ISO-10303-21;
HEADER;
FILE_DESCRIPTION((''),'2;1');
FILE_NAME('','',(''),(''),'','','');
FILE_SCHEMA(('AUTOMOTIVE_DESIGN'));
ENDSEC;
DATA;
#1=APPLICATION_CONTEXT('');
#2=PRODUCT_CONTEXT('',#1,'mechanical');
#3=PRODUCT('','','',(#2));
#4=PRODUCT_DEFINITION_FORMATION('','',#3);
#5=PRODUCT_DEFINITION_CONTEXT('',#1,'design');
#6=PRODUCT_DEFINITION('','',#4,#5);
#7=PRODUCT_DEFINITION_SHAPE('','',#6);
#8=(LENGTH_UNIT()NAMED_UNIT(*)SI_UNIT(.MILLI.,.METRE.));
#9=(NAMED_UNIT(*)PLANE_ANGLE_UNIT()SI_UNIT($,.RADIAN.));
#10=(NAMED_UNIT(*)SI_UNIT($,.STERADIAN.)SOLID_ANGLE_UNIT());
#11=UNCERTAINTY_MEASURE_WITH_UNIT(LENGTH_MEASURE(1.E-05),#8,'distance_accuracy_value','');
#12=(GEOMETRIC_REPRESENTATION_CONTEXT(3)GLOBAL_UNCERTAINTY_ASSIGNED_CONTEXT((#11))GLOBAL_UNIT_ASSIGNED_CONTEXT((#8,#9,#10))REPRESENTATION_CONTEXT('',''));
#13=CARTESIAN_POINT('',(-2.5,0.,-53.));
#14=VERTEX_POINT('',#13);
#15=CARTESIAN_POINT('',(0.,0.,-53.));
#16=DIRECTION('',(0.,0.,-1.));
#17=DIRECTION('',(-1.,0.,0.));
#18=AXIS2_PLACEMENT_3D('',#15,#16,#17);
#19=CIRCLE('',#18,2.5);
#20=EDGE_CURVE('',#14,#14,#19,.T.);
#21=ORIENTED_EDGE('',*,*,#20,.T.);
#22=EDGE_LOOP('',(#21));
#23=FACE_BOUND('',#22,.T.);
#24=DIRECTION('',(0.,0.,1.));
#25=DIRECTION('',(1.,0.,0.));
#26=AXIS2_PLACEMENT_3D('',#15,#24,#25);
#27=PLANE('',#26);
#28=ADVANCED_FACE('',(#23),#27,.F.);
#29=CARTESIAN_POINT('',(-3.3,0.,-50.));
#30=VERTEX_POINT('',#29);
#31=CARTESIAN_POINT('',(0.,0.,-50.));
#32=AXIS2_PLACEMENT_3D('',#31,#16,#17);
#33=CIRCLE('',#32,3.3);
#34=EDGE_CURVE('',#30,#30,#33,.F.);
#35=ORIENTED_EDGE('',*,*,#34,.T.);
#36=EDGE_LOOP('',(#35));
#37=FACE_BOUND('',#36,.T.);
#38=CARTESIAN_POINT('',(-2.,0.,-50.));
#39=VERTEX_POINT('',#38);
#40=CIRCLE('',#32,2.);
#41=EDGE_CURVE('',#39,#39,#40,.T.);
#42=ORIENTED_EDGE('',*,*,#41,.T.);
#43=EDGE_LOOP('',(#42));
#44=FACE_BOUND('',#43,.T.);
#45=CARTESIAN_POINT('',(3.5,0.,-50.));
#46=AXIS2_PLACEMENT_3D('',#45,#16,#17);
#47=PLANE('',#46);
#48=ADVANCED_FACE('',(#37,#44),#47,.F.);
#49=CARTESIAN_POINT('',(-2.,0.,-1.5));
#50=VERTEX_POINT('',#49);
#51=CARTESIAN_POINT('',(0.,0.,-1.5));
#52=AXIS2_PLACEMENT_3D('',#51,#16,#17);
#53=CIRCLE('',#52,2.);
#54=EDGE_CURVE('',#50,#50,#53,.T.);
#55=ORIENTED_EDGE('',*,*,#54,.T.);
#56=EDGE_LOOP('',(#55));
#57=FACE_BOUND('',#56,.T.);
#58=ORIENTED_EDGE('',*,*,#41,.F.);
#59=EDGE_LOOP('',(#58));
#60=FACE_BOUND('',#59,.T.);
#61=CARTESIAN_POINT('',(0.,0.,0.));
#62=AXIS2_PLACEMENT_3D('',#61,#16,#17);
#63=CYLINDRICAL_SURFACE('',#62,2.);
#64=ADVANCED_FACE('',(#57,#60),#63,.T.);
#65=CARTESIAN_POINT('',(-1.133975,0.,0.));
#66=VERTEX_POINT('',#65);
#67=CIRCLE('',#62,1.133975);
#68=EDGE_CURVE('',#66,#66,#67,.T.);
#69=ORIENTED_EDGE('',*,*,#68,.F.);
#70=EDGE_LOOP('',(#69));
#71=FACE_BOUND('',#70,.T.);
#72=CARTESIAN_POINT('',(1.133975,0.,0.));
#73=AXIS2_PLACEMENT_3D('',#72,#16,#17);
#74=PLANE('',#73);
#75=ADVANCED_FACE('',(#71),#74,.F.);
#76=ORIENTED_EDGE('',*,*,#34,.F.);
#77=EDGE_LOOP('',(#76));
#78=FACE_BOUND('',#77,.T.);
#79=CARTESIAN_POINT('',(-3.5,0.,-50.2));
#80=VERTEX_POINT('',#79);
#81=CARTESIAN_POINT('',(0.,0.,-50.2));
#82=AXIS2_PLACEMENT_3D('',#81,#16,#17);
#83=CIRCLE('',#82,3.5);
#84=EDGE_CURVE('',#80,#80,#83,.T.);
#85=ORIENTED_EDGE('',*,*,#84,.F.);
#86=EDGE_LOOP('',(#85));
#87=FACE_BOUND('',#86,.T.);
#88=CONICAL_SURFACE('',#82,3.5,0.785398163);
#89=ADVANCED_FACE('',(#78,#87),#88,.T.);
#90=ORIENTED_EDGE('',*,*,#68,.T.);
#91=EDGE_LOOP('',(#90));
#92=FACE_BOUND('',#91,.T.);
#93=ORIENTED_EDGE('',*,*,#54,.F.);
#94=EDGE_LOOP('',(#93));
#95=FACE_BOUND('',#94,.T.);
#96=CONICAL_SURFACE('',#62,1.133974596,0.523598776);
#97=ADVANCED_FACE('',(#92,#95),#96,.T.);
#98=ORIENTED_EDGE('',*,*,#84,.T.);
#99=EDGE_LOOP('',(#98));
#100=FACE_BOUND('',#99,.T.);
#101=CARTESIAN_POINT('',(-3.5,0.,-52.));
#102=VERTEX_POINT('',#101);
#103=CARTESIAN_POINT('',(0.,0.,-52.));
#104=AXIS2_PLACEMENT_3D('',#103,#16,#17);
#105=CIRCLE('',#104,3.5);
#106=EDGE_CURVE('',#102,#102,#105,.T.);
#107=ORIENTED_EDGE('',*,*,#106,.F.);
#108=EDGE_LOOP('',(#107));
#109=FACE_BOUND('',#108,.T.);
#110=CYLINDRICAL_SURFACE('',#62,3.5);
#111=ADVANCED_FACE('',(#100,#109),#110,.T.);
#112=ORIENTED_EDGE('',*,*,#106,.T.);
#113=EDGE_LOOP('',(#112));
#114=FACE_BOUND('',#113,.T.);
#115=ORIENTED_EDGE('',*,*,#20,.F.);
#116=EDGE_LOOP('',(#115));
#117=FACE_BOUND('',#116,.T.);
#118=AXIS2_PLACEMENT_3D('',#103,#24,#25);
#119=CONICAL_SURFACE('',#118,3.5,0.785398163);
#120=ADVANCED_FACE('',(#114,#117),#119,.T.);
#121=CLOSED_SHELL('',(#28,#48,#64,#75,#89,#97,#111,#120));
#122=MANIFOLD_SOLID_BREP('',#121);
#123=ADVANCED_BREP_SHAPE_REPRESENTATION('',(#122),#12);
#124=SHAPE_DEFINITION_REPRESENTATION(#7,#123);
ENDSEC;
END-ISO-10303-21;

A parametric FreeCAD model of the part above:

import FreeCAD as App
import Part
import Sketcher
Q = App.Units.Quantity


def edges_at(feature, points):
    """Names of the edges that pass closest to the given points."""
    edges = feature.Shape.Edges
    near = lambda p: min(range(len(edges)), key=lambda i: edges[i].distToShape(Part.Vertex(*p))[0])
    return sorted({f"Edge{near(p) + 1}" for p in points})

doc = App.newDocument("Part")
body = doc.addObject("PartDesign::Body", "Body")

# Sketch on XZ plane
sketch1 = body.newObject("Sketcher::SketchObject", "Sketch")
sketch1.AttachmentSupport = (doc.getObject("XZ_Plane"), [""])
sketch1.MapMode = "FlatFace"
sketch1.addGeometry([
    Part.LineSegment(App.Vector(0, -53, 0), App.Vector(0, 0, 0)),  # 0
    Part.LineSegment(App.Vector(0, 0, 0), App.Vector(1.133975, 0, 0)),  # 1
    Part.LineSegment(App.Vector(1.133975, 0, 0), App.Vector(2, -1.5, 0)),  # 2
    Part.LineSegment(App.Vector(2, -1.5, 0), App.Vector(2, -50, 0)),  # 3
    Part.LineSegment(App.Vector(2, -50, 0), App.Vector(3.5, -50, 0)),  # 4
    Part.LineSegment(App.Vector(3.5, -50, 0), App.Vector(3.5, -52, 0)),  # 5
    Part.LineSegment(App.Vector(3.5, -52, 0), App.Vector(2.5, -53, 0)),  # 6
    Part.LineSegment(App.Vector(2.5, -53, 0), App.Vector(0, -53, 0)),  # 7
], False)
sketch1.addConstraint([
    Sketcher.Constraint("Coincident", 0, 2, 1, 1),
    Sketcher.Constraint("Coincident", 1, 2, 2, 1),
    Sketcher.Constraint("Coincident", 2, 2, 3, 1),
    Sketcher.Constraint("Coincident", 3, 2, 4, 1),
    Sketcher.Constraint("Coincident", 4, 2, 5, 1),
    Sketcher.Constraint("Coincident", 5, 2, 6, 1),
    Sketcher.Constraint("Coincident", 6, 2, 7, 1),
    Sketcher.Constraint("Coincident", 7, 2, 0, 1),
    Sketcher.Constraint("Vertical", 0),
    Sketcher.Constraint("Horizontal", 1),
    Sketcher.Constraint("Vertical", 3),
    Sketcher.Constraint("Horizontal", 4),
    Sketcher.Constraint("Vertical", 5),
    Sketcher.Constraint("Horizontal", 7),
    Sketcher.Constraint("Coincident", 0, 2, -1, 1),
    Sketcher.Constraint("DistanceY", 0, 1, 0, 2, Q("53 mm")),
    Sketcher.Constraint("DistanceY", 5, 2, 5, 1, Q("2 mm")),
    Sketcher.Constraint("Angle", 2, Q("-60 deg")),
    Sketcher.Constraint("Angle", 6, Q("-135 deg")),
    Sketcher.Constraint("DistanceX", 4, 1, 4, 2, Q("1.5 mm")),
    Sketcher.Constraint("DistanceX", 7, 2, 7, 1, Q("2.5 mm")),
    Sketcher.Constraint("DistanceY", 3, 2, 3, 1, Q("48.5 mm")),
    Sketcher.Constraint("DistanceX", -1, 1, 2, 2, Q("2 mm")),
])
revolution = body.newObject("PartDesign::Revolution", "Revolution")
revolution.Profile = sketch1
revolution.ReferenceAxis = (sketch1, ["V_Axis"])
revolution.Angle = 360
doc.recompute()

chamfer = body.newObject("PartDesign::Chamfer", "Chamfer")
chamfer.Base = (revolution, edges_at(revolution, [(-3.5, 0, -50)]))
chamfer.Size = 0.2

doc.recompute()
